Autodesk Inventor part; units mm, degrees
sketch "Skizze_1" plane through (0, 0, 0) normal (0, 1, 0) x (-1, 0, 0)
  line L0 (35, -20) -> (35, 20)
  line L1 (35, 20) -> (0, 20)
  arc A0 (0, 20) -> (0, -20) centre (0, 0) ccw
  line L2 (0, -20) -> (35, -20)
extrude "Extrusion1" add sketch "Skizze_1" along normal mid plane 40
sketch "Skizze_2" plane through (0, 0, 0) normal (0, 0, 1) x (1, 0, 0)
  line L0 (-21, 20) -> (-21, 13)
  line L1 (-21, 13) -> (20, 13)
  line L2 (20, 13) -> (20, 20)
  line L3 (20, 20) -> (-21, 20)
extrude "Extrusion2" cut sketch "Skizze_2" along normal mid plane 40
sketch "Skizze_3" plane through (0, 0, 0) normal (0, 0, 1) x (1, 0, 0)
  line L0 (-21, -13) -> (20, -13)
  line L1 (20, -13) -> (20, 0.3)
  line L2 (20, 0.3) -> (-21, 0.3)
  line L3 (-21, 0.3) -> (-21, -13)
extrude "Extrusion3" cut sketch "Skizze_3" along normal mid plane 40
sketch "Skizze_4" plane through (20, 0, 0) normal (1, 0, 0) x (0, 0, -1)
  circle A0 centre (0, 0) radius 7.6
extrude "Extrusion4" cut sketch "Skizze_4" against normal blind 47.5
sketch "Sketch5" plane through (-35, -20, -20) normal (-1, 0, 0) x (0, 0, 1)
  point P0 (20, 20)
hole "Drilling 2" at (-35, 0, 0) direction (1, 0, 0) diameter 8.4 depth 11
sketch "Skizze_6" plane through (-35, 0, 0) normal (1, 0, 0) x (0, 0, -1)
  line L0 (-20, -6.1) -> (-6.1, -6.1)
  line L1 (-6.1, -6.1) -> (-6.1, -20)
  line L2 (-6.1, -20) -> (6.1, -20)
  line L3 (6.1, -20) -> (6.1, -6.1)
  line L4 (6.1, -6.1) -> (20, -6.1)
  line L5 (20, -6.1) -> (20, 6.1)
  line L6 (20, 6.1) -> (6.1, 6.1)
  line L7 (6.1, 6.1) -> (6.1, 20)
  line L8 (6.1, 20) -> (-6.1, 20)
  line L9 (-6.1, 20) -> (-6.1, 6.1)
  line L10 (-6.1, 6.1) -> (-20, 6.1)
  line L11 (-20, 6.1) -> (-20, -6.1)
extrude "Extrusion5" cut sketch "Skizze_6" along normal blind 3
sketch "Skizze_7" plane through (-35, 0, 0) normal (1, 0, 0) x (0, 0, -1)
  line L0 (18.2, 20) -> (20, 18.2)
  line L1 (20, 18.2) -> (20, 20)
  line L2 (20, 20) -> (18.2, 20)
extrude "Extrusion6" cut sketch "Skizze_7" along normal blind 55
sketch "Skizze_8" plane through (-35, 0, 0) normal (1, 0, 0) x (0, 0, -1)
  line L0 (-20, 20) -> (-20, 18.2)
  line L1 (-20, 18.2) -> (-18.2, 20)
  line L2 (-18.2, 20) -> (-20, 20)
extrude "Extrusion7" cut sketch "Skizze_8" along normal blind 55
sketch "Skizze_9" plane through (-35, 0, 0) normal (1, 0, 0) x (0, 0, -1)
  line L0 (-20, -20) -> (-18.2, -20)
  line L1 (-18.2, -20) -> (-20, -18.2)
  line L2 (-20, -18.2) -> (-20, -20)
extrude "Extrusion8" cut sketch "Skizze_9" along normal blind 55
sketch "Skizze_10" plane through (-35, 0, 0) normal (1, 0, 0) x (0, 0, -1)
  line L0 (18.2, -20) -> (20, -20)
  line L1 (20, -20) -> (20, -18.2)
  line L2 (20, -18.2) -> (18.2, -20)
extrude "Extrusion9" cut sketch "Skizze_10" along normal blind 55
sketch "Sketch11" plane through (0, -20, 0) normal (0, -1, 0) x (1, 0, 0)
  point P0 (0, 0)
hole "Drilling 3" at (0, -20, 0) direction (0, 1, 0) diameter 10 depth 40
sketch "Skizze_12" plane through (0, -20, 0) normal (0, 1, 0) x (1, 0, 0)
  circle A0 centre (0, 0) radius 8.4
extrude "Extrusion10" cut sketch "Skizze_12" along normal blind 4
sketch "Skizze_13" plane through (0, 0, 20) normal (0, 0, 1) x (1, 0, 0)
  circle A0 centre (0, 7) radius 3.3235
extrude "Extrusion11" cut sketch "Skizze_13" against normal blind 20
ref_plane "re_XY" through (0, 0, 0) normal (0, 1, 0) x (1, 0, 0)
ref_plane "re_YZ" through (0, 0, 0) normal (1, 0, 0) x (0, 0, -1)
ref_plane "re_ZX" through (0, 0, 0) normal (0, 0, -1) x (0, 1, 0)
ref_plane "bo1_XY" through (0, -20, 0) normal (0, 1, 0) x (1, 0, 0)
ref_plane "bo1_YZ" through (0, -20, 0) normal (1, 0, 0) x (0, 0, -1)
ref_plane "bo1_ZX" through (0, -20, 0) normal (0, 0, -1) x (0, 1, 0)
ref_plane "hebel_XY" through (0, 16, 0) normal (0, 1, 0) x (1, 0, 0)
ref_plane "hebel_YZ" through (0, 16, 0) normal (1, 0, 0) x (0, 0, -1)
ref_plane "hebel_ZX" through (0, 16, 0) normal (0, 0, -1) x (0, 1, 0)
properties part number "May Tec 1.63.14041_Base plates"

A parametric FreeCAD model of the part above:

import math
import FreeCAD as App
import Part
import Sketcher
from FreeCAD import Vector
Q = App.Units.Quantity


def add_polygon(sketch, points):
    """Adds a closed chain of lines whose ends are joined by coincident constraints."""
    first, n = sketch.GeometryCount, len(points)
    for a, b in zip(points, points[1:] + points[:1]):
        sketch.addGeometry(Part.LineSegment(App.Vector(*a, 0), App.Vector(*b, 0)), False)
    for i in range(n):
        sketch.addConstraint(Sketcher.Constraint("Coincident", first + i, 2, first + (i + 1) % n, 1))

doc = App.newDocument("Part")
params = doc.addObject("Spreadsheet::Sheet", "Params")
for row, (alias, value) in enumerate([
    ("sketch1_radius", "20 mm"),
    ("sketch1_width", "35 mm"),
    ("pad1_length", "40 mm"),
    ("sketch2_width", "41 mm"),
    ("sketch2_height", "7 mm"),
    ("pocket1_length", "40 mm"),
    ("sketch3_width", "41 mm"),
    ("sketch3_height", "13.3 mm"),
    ("pocket2_length", "40 mm"),
    ("sketch4_diameter", "15.2 mm"),
    ("pocket3_length", "47.5 mm"),
    ("sketch5_diameter", "8.4 mm"),
    ("hole_diameter", "8.4 mm"),
    ("hole_depth", "11 mm"),
    ("sketch6_width", "12.2 mm"),
    ("sketch6_width2", "13.9 mm"),
    ("pocket4_length", "3 mm"),
    ("sketch7_width", "1.8 mm"),
    ("pocket5_length", "55 mm"),
    ("sketch8_width", "1.8 mm"),
    ("pocket6_length", "55 mm"),
    ("sketch9_width", "1.8 mm"),
    ("pocket7_length", "55 mm"),
    ("sketch10_width", "1.8 mm"),
    ("pocket8_length", "55 mm"),
    ("sketch11_diameter", "10 mm"),
    ("hole2_diameter", "10 mm"),
    ("hole2_depth", "40 mm"),
    ("sketch12_diameter", "16.8 mm"),
    ("pocket9_length", "4 mm"),
    ("pocket10_length", "20 mm"),
], start=1):
    params.set(f"A{row}", alias)
    params.set(f"B{row}", "=" + value)
    params.setAlias(f"B{row}", alias)

body = doc.addObject("PartDesign::Body", "Body")

# Sketch on XZ plane
sketch1 = body.newObject("Sketcher::SketchObject", "Sketch")
sketch1.AttachmentSupport = (doc.getObject("XZ_Plane"), [""])
sketch1.MapMode = "FlatFace"
sketch1.addGeometry([
    Part.LineSegment(Vector(0, -20, 0), Vector(-35, -20, 0)),
    Part.LineSegment(Vector(-35, -20, 0), Vector(-35, 20, 0)),
    Part.LineSegment(Vector(-35, 20, 0), Vector(0, 20, 0)),
    Part.ArcOfCircle(Part.Circle(Vector(0, 0, 0), Vector(0, 0, 1), 20), math.radians(-90), math.radians(90)),
], False)
sketch1.addConstraint([
    Sketcher.Constraint("Coincident", 0, 2, 1, 1),
    Sketcher.Constraint("Coincident", 1, 2, 2, 1),
    Sketcher.Constraint("Tangent", 2, 2, 3, 2),
    Sketcher.Constraint("Tangent", 3, 1, 0, 1),
    Sketcher.Constraint("Horizontal", 0),
    Sketcher.Constraint("Vertical", 1),
    Sketcher.Constraint("Horizontal", 2),
    Sketcher.Constraint("Coincident", 3, 3, -1, 1),
    Sketcher.Constraint("Radius", 3, Q("20 mm")),
    Sketcher.Constraint("DistanceX", 0, 2, 0, 1, Q("35 mm")),
])
sketch1.setExpression("Constraints[8]", "Params.sketch1_radius")
sketch1.setExpression("Constraints[9]", "Params.sketch1_width")
pad1 = body.newObject("PartDesign::Pad", "Pad")
pad1.Profile = sketch1
pad1.setExpression("Length", "Params.pad1_length")
pad1.Midplane = True

# Sketch on XY plane
sketch2 = body.newObject("Sketcher::SketchObject", "Sketch001")
sketch2.AttachmentSupport = (doc.getObject("XY_Plane"), [""])
sketch2.MapMode = "FlatFace"
add_polygon(sketch2, [(20, 20), (-21, 20), (-21, 13), (20, 13)])  # lines 0-3
sketch2.addConstraint([
    Sketcher.Constraint("Horizontal", 0),
    Sketcher.Constraint("Vertical", 1),
    Sketcher.Constraint("Horizontal", 2),
    Sketcher.Constraint("Vertical", 3),
    Sketcher.Constraint("DistanceX", 0, 2, 0, 1, Q("41 mm")),
    Sketcher.Constraint("DistanceY", 1, 2, 1, 1, Q("7 mm")),
    Sketcher.Constraint("DistanceX", 0, 2, -1, 1, Q("21 mm")),
    Sketcher.Constraint("DistanceY", -1, 1, 0, 2, Q("20 mm")),
])
sketch2.setExpression("Constraints[8]", "Params.sketch2_width")
sketch2.setExpression("Constraints[9]", "Params.sketch2_height")
pocket1 = body.newObject("PartDesign::Pocket", "Pocket")
pocket1.Profile = sketch2
pocket1.setExpression("Length", "Params.pocket1_length")
pocket1.Midplane = True

# Sketch on XY plane
sketch3 = body.newObject("Sketcher::SketchObject", "Sketch002")
sketch3.AttachmentSupport = (doc.getObject("XY_Plane"), [""])
sketch3.MapMode = "FlatFace"
add_polygon(sketch3, [(-21, 0.3), (-21, -13), (20, -13), (20, 0.3)])  # lines 0-3
sketch3.addConstraint([
    Sketcher.Constraint("Vertical", 0),
    Sketcher.Constraint("Horizontal", 1),
    Sketcher.Constraint("Vertical", 2),
    Sketcher.Constraint("Horizontal", 3),
    Sketcher.Constraint("DistanceX", 1, 1, 1, 2, Q("41 mm")),
    Sketcher.Constraint("DistanceY", 0, 2, 0, 1, Q("13.3 mm")),
    Sketcher.Constraint("DistanceX", 0, 2, -1, 1, Q("21 mm")),
    Sketcher.Constraint("DistanceY", 0, 2, -1, 1, Q("13 mm")),
])
sketch3.setExpression("Constraints[8]", "Params.sketch3_width")
sketch3.setExpression("Constraints[9]", "Params.sketch3_height")
pocket2 = body.newObject("PartDesign::Pocket", "Pocket001")
pocket2.Profile = sketch3
pocket2.setExpression("Length", "Params.pocket2_length")
pocket2.Midplane = True

# Sketch on YZ plane
sketch4 = body.newObject("Sketcher::SketchObject", "Sketch003")
sketch4.AttachmentSupport = (doc.getObject("YZ_Plane"), [""])
sketch4.MapMode = "FlatFace"
sketch4.AttachmentOffset = App.Placement(Vector(0, 0, 20), App.Rotation())
sketch4.addGeometry(Part.Circle(Vector(0, 0, 0), Vector(0, 0, 1), 7.6), False)
sketch4.addConstraint([
    Sketcher.Constraint("Coincident", 0, 3, -1, 1),
    Sketcher.Constraint("Diameter", 0, Q("15.2 mm")),
])
sketch4.setExpression("Constraints[1]", "Params.sketch4_diameter")
pocket3 = body.newObject("PartDesign::Pocket", "Pocket002")
pocket3.Profile = sketch4
pocket3.setExpression("Length", "Params.pocket3_length")

# Sketch on YZ plane
sketch5 = body.newObject("Sketcher::SketchObject", "Sketch004")
sketch5.AttachmentSupport = (doc.getObject("YZ_Plane"), [""])
sketch5.MapMode = "FlatFace"
sketch5.AttachmentOffset = App.Placement(Vector(0, 0, -35), App.Rotation())
sketch5.addGeometry(Part.Circle(Vector(0, 0, 0), Vector(0, 0, 1), 4.2), False)
sketch5.addConstraint([
    Sketcher.Constraint("Coincident", 0, 3, -1, 1),
    Sketcher.Constraint("Diameter", 0, Q("8.4 mm")),
])
sketch5.setExpression("Constraints[1]", "Params.sketch5_diameter")
doc.recompute()
hole = body.newObject("PartDesign::Hole", "Hole")
hole.Profile = sketch5
hole.ThreadType = "None"
hole.setExpression("Diameter", "Params.hole_diameter")
hole.DepthType = "Dimension"
hole.setExpression("Depth", "Params.hole_depth")
hole.DrillPoint = "Flat"
hole.Reversed = True

# Sketch on YZ plane
sketch6 = body.newObject("Sketcher::SketchObject", "Sketch005")
sketch6.AttachmentSupport = (doc.getObject("YZ_Plane"), [""])
sketch6.MapMode = "FlatFace"
sketch6.AttachmentOffset = App.Placement(Vector(0, 0, -35), App.Rotation())
add_polygon(sketch6, [(6.1, 20), (-6.1, 20), (-6.1, 6.1), (-20, 6.1), (-20, -6.1), (-6.1, -6.1), (-6.1, -20), (6.1, -20), (6.1, -6.1), (20, -6.1), (20, 6.1), (6.1, 6.1)])  # lines 0-11
sketch6.addConstraint([
    Sketcher.Constraint("Horizontal", 0),
    Sketcher.Constraint("Vertical", 1),
    Sketcher.Constraint("Horizontal", 2),
    Sketcher.Constraint("Vertical", 3),
    Sketcher.Constraint("Horizontal", 4),
    Sketcher.Constraint("Vertical", 5),
    Sketcher.Constraint("Horizontal", 6),
    Sketcher.Constraint("Vertical", 7),
    Sketcher.Constraint("Horizontal", 8),
    Sketcher.Constraint("Vertical", 9),
    Sketcher.Constraint("Horizontal", 10),
    Sketcher.Constraint("Vertical", 11),
    Sketcher.Constraint("Symmetric", 0, 2, 6, 2, -1, 1),
    Sketcher.Constraint("Symmetric", 2, 2, 8, 2, -1, 1),
    Sketcher.Constraint("Symmetric", 4, 2, 10, 2, -1, 1),
    Sketcher.Constraint("Symmetric", 4, 2, 7, 2, -2),
    Sketcher.Constraint("Equal", 10, 1),
    Sketcher.Constraint("Equal", 6, 3),
    Sketcher.Constraint("DistanceX", 0, 2, 0, 1, Q("12.2 mm")),
    Sketcher.Constraint("DistanceX", 2, 2, 2, 1, Q("13.9 mm")),
])
sketch6.setExpression("Constraints[30]", "Params.sketch6_width")
sketch6.setExpression("Constraints[31]", "Params.sketch6_width2")
pocket4 = body.newObject("PartDesign::Pocket", "Pocket003")
pocket4.Profile = sketch6
pocket4.setExpression("Length", "Params.pocket4_length")
pocket4.Reversed = True

# Sketch on YZ plane
sketch7 = body.newObject("Sketcher::SketchObject", "Sketch006")
sketch7.AttachmentSupport = (doc.getObject("YZ_Plane"), [""])
sketch7.MapMode = "FlatFace"
sketch7.AttachmentOffset = App.Placement(Vector(0, 0, -35), App.Rotation())
add_polygon(sketch7, [(20, -20), (20, -18.2), (18.2, -20)])  # lines 0-2
sketch7.addConstraint([
    Sketcher.Constraint("Vertical", 0),
    Sketcher.Constraint("Horizontal", 2),
    Sketcher.Constraint("Equal", 2, 0),
    Sketcher.Constraint("DistanceX", 2, 1, 2, 2, Q("1.8 mm")),
    Sketcher.Constraint("DistanceX", -1, 1, 0, 2, Q("20 mm")),
    Sketcher.Constraint("DistanceY", 1, 2, -1, 1, Q("20 mm")),
])
sketch7.setExpression("Constraints[6]", "Params.sketch7_width")
pocket5 = body.newObject("PartDesign::Pocket", "Pocket004")
pocket5.Profile = sketch7
pocket5.setExpression("Length", "Params.pocket5_length")
pocket5.Reversed = True

# Sketch on YZ plane
sketch8 = body.newObject("Sketcher::SketchObject", "Sketch007")
sketch8.AttachmentSupport = (doc.getObject("YZ_Plane"), [""])
sketch8.MapMode = "FlatFace"
sketch8.AttachmentOffset = App.Placement(Vector(0, 0, -35), App.Rotation())
add_polygon(sketch8, [(20, 18.2), (20, 20), (18.2, 20)])  # lines 0-2
sketch8.addConstraint([
    Sketcher.Constraint("Vertical", 0),
    Sketcher.Constraint("Horizontal", 1),
    Sketcher.Constraint("Equal", 1, 0),
    Sketcher.Constraint("DistanceX", 1, 2, 1, 1, Q("1.8 mm")),
    Sketcher.Constraint("DistanceX", -1, 1, 0, 2, Q("20 mm")),
    Sketcher.Constraint("DistanceY", -1, 1, 0, 2, Q("20 mm")),
])
sketch8.setExpression("Constraints[6]", "Params.sketch8_width")
pocket6 = body.newObject("PartDesign::Pocket", "Pocket005")
pocket6.Profile = sketch8
pocket6.setExpression("Length", "Params.pocket6_length")
pocket6.Reversed = True

# Sketch on YZ plane
sketch9 = body.newObject("Sketcher::SketchObject", "Sketch008")
sketch9.AttachmentSupport = (doc.getObject("YZ_Plane"), [""])
sketch9.MapMode = "FlatFace"
sketch9.AttachmentOffset = App.Placement(Vector(0, 0, -35), App.Rotation())
add_polygon(sketch9, [(-18.2, 20), (-20, 20), (-20, 18.2)])  # lines 0-2
sketch9.addConstraint([
    Sketcher.Constraint("Horizontal", 0),
    Sketcher.Constraint("Vertical", 1),
    Sketcher.Constraint("Equal", 0, 1),
    Sketcher.Constraint("DistanceX", 0, 2, 0, 1, Q("1.8 mm")),
    Sketcher.Constraint("DistanceX", 0, 2, -1, 1, Q("20 mm")),
    Sketcher.Constraint("DistanceY", -1, 1, 0, 2, Q("20 mm")),
])
sketch9.setExpression("Constraints[6]", "Params.sketch9_width")
pocket7 = body.newObject("PartDesign::Pocket", "Pocket006")
pocket7.Profile = sketch9
pocket7.setExpression("Length", "Params.pocket7_length")
pocket7.Reversed = True

# Sketch on YZ plane
sketch10 = body.newObject("Sketcher::SketchObject", "Sketch009")
sketch10.AttachmentSupport = (doc.getObject("YZ_Plane"), [""])
sketch10.MapMode = "FlatFace"
sketch10.AttachmentOffset = App.Placement(Vector(0, 0, -35), App.Rotation())
add_polygon(sketch10, [(-18.2, -20), (-20, -18.2), (-20, -20)])  # lines 0-2
sketch10.addConstraint([
    Sketcher.Constraint("Vertical", 1),
    Sketcher.Constraint("Horizontal", 2),
    Sketcher.Constraint("Equal", 2, 1),
    Sketcher.Constraint("DistanceX", 2, 1, 2, 2, Q("1.8 mm")),
    Sketcher.Constraint("DistanceX", 0, 2, -1, 1, Q("20 mm")),
    Sketcher.Constraint("DistanceY", 1, 2, -1, 1, Q("20 mm")),
])
sketch10.setExpression("Constraints[6]", "Params.sketch10_width")
pocket8 = body.newObject("PartDesign::Pocket", "Pocket007")
pocket8.Profile = sketch10
pocket8.setExpression("Length", "Params.pocket8_length")
pocket8.Reversed = True

# Sketch on XZ plane
sketch11 = body.newObject("Sketcher::SketchObject", "Sketch010")
sketch11.AttachmentSupport = (doc.getObject("XZ_Plane"), [""])
sketch11.MapMode = "FlatFace"
sketch11.AttachmentOffset = App.Placement(Vector(0, 0, 20), App.Rotation())
sketch11.addGeometry(Part.Circle(Vector(0, 0, 0), Vector(0, 0, 1), 5), False)
sketch11.addConstraint([
    Sketcher.Constraint("Coincident", 0, 3, -1, 1),
    Sketcher.Constraint("Diameter", 0, Q("10 mm")),
])
sketch11.setExpression("Constraints[1]", "Params.sketch11_diameter")
doc.recompute()
hole2 = body.newObject("PartDesign::Hole", "Hole001")
hole2.Profile = sketch11
hole2.ThreadType = "None"
hole2.setExpression("Diameter", "Params.hole2_diameter")
hole2.DepthType = "Dimension"
hole2.setExpression("Depth", "Params.hole2_depth")
hole2.DrillPoint = "Flat"

# Sketch on XZ plane
sketch12 = body.newObject("Sketcher::SketchObject", "Sketch011")
sketch12.AttachmentSupport = (doc.getObject("XZ_Plane"), [""])
sketch12.MapMode = "FlatFace"
sketch12.AttachmentOffset = App.Placement(Vector(0, 0, 20), App.Rotation())
sketch12.addGeometry(Part.Circle(Vector(0, 0, 0), Vector(0, 0, 1), 8.4), False)
sketch12.addConstraint([
    Sketcher.Constraint("Coincident", 0, 3, -1, 1),
    Sketcher.Constraint("Diameter", 0, Q("16.8 mm")),
])
sketch12.setExpression("Constraints[1]", "Params.sketch12_diameter")
pocket9 = body.newObject("PartDesign::Pocket", "Pocket008")
pocket9.Profile = sketch12
pocket9.setExpression("Length", "Params.pocket9_length")

# Sketch on XY plane
sketch13 = body.newObject("Sketcher::SketchObject", "Sketch012")
sketch13.AttachmentSupport = (doc.getObject("XY_Plane"), [""])
sketch13.MapMode = "FlatFace"
sketch13.AttachmentOffset = App.Placement(Vector(0, 0, 20), App.Rotation())
sketch13.addGeometry(Part.Circle(Vector(0, 7, 0), Vector(0, 0, 1), 3.3235), False)
sketch13.addConstraint([
    Sketcher.Constraint("PointOnObject", 0, 3, -2),
    Sketcher.Constraint("Diameter", 0, Q("6.647 mm")),
    Sketcher.Constraint("DistanceY", -1, 1, 0, 3, Q("7 mm")),
])
pocket10 = body.newObject("PartDesign::Pocket", "Pocket009")
pocket10.Profile = sketch13
pocket10.setExpression("Length", "Params.pocket10_length")

doc.recompute()
